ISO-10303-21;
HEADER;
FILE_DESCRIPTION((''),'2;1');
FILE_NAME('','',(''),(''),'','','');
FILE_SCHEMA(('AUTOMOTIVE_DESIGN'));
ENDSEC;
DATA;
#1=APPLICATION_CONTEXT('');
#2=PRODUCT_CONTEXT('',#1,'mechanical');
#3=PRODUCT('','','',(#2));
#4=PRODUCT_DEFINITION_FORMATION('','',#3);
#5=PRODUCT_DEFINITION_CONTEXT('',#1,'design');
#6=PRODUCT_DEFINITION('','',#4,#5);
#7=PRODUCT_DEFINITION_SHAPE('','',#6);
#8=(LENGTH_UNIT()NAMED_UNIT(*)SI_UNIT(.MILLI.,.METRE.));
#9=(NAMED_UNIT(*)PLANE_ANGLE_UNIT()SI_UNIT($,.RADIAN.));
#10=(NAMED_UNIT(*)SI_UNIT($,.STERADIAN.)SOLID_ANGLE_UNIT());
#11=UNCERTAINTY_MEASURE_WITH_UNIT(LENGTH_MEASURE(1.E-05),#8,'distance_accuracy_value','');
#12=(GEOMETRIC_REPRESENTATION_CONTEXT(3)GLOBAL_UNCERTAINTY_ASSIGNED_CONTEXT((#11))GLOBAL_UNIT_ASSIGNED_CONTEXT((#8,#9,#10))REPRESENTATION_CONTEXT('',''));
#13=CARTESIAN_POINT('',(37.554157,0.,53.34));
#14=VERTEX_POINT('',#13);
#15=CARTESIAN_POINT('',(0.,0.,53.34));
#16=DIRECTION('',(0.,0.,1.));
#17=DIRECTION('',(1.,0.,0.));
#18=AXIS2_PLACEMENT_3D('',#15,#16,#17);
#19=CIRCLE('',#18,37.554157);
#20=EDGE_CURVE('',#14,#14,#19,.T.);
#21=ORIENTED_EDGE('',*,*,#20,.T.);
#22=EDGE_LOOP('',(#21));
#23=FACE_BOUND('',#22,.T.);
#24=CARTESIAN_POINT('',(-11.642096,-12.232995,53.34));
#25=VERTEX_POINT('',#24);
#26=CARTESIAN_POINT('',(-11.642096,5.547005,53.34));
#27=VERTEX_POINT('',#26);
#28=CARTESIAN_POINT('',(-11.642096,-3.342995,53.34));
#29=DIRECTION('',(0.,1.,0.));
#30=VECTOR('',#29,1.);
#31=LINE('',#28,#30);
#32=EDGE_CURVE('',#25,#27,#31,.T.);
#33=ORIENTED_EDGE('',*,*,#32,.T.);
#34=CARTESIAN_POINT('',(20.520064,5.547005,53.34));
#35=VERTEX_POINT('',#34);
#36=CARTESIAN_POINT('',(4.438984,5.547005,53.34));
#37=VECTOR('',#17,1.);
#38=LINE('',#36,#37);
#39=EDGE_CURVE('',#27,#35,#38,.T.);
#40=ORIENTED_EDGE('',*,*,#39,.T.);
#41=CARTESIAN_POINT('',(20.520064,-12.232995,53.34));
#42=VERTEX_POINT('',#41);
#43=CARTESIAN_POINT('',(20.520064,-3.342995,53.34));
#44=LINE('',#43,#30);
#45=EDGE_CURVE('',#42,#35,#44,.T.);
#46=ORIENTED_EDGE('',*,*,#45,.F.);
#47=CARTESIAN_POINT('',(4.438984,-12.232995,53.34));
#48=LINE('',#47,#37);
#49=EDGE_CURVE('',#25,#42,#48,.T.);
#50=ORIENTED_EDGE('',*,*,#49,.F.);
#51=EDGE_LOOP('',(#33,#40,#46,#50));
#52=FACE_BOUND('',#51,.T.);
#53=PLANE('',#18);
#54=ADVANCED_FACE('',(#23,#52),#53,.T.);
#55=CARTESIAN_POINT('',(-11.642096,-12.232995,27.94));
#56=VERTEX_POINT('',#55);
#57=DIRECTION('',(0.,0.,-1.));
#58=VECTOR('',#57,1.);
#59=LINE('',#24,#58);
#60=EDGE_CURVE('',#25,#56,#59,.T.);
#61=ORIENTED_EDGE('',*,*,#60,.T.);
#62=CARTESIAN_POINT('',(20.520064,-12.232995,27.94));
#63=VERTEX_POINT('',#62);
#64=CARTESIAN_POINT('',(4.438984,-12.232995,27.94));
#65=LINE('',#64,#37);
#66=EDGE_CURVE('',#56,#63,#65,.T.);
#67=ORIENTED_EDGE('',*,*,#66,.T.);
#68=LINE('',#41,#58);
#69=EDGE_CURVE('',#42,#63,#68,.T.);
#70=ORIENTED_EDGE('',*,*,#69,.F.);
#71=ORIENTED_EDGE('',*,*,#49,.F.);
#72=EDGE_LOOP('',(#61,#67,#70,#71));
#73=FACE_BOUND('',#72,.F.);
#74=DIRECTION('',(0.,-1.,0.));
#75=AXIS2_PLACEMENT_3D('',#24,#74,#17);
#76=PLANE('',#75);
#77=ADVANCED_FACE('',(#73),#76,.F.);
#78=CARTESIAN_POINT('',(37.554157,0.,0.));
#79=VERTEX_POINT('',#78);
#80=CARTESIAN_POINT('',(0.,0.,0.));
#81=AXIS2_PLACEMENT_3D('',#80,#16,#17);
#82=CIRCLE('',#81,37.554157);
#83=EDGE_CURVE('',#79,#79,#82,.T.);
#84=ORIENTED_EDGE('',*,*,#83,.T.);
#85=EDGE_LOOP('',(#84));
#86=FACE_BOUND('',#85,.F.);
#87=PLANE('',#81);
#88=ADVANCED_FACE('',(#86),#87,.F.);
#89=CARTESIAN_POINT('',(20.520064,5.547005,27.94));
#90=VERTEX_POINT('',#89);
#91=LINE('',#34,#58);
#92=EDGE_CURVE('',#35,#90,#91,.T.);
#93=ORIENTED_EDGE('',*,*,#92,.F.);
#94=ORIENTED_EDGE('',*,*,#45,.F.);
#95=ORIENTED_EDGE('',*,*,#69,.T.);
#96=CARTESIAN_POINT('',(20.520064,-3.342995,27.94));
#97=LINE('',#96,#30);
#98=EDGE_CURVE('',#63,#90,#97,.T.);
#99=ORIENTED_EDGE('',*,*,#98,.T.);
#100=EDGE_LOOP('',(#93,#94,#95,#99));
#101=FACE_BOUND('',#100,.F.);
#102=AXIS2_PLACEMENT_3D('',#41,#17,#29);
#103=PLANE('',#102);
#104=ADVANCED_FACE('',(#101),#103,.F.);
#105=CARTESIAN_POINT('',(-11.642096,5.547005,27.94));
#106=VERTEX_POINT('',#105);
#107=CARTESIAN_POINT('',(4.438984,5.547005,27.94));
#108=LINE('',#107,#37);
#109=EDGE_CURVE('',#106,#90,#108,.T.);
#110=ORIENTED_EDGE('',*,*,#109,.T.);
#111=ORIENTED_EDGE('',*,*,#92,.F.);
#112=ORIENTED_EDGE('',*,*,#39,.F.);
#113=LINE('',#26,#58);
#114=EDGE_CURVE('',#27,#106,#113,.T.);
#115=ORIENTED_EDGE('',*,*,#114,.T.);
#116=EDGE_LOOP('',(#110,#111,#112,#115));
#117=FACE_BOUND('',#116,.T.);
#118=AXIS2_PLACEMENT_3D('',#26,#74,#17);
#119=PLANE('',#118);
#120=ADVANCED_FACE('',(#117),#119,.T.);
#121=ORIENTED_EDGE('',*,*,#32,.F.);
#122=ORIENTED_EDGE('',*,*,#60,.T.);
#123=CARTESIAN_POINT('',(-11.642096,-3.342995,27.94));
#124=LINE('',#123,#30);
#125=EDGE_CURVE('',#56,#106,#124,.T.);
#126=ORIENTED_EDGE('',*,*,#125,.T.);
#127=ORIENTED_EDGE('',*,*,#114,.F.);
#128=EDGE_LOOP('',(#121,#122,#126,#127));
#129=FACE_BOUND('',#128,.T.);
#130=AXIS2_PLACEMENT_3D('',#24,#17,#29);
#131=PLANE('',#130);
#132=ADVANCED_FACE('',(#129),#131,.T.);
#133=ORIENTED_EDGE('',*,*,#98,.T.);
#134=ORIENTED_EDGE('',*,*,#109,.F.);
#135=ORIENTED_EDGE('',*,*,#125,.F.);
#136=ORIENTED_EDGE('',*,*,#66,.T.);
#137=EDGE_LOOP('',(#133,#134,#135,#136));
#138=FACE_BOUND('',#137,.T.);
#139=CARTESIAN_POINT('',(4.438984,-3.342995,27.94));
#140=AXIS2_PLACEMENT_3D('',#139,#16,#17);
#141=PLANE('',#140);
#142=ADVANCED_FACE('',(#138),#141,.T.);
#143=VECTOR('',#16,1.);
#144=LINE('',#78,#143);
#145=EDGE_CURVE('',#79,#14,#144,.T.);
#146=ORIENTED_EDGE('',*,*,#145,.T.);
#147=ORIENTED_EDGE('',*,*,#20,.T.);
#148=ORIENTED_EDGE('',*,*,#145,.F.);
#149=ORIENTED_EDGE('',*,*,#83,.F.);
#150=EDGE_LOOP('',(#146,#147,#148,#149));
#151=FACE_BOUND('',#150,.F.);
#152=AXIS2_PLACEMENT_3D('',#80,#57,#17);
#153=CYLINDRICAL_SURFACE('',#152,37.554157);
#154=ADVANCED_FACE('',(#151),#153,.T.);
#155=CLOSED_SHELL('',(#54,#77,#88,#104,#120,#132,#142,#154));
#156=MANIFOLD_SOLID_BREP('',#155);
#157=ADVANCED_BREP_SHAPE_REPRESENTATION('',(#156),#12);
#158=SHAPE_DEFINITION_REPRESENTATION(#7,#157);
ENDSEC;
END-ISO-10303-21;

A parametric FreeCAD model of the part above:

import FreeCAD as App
import Part
import Sketcher

V = App.Vector
Q = App.Units.Quantity

doc = App.newDocument("Part")
body = doc.addObject("PartDesign::Body", "Body")

# Sketch on XY plane
sketch1 = body.newObject("Sketcher::SketchObject", "Sketch")
sketch1.AttachmentSupport = (doc.getObject("XY_Plane"), [""])
sketch1.MapMode = "FlatFace"
sketch1.addGeometry(Part.Circle(V(0, 0, 0), V(0, 0, 1), 38), False)
sketch1.addConstraint(Sketcher.Constraint("Coincident", 0, 3, -1, 1))
sketch1.addConstraint(Sketcher.Constraint("Diameter", 0, 75.108314))
pad1 = body.newObject("PartDesign::Pad", "Pad")
pad1.Profile = sketch1
pad1.Length = Q("2.1 in")

# Sketch on XY plane
sketch2 = body.newObject("Sketcher::SketchObject", "Sketch001")
sketch2.AttachmentSupport = (doc.getObject("XY_Plane"), [""])
sketch2.MapMode = "FlatFace"
sketch2.AttachmentOffset = App.Placement(V(0, 0, 2.1 * 25.4), App.Rotation())
sketch2.addGeometry(Part.LineSegment(V(-12, 6, 0), V(-12, -12, 0)), False)
sketch2.addGeometry(Part.LineSegment(V(-12, -12, 0), V(21, -12, 0)), False)
sketch2.addGeometry(Part.LineSegment(V(21, -12, 0), V(21, 6, 0)), False)
sketch2.addGeometry(Part.LineSegment(V(21, 6, 0), V(-12, 6, 0)), False)
sketch2.addConstraint(Sketcher.Constraint("Coincident", 0, 2, 1, 1))
sketch2.addConstraint(Sketcher.Constraint("Coincident", 1, 2, 2, 1))
sketch2.addConstraint(Sketcher.Constraint("Coincident", 2, 2, 3, 1))
sketch2.addConstraint(Sketcher.Constraint("Coincident", 3, 2, 0, 1))
sketch2.addConstraint(Sketcher.Constraint("Vertical", 0))
sketch2.addConstraint(Sketcher.Constraint("Horizontal", 1))
sketch2.addConstraint(Sketcher.Constraint("Vertical", 2))
sketch2.addConstraint(Sketcher.Constraint("Horizontal", 3))
sketch2.addConstraint(Sketcher.Constraint("DistanceY", 0, 2, 0, 1, Q("0.7 in")))
sketch2.addConstraint(Sketcher.Constraint("DistanceX", 1, 1, 1, 2, 32.16216))
sketch2.addConstraint(Sketcher.Constraint("DistanceX", 0, 2, -1, 1, 11.642096))
sketch2.addConstraint(Sketcher.Constraint("DistanceY", 0, 2, -1, 1, 12.232995))
pocket1 = body.newObject("PartDesign::Pocket", "Pocket")
pocket1.Profile = sketch2
pocket1.Length = Q("1 in")

doc.recompute()
